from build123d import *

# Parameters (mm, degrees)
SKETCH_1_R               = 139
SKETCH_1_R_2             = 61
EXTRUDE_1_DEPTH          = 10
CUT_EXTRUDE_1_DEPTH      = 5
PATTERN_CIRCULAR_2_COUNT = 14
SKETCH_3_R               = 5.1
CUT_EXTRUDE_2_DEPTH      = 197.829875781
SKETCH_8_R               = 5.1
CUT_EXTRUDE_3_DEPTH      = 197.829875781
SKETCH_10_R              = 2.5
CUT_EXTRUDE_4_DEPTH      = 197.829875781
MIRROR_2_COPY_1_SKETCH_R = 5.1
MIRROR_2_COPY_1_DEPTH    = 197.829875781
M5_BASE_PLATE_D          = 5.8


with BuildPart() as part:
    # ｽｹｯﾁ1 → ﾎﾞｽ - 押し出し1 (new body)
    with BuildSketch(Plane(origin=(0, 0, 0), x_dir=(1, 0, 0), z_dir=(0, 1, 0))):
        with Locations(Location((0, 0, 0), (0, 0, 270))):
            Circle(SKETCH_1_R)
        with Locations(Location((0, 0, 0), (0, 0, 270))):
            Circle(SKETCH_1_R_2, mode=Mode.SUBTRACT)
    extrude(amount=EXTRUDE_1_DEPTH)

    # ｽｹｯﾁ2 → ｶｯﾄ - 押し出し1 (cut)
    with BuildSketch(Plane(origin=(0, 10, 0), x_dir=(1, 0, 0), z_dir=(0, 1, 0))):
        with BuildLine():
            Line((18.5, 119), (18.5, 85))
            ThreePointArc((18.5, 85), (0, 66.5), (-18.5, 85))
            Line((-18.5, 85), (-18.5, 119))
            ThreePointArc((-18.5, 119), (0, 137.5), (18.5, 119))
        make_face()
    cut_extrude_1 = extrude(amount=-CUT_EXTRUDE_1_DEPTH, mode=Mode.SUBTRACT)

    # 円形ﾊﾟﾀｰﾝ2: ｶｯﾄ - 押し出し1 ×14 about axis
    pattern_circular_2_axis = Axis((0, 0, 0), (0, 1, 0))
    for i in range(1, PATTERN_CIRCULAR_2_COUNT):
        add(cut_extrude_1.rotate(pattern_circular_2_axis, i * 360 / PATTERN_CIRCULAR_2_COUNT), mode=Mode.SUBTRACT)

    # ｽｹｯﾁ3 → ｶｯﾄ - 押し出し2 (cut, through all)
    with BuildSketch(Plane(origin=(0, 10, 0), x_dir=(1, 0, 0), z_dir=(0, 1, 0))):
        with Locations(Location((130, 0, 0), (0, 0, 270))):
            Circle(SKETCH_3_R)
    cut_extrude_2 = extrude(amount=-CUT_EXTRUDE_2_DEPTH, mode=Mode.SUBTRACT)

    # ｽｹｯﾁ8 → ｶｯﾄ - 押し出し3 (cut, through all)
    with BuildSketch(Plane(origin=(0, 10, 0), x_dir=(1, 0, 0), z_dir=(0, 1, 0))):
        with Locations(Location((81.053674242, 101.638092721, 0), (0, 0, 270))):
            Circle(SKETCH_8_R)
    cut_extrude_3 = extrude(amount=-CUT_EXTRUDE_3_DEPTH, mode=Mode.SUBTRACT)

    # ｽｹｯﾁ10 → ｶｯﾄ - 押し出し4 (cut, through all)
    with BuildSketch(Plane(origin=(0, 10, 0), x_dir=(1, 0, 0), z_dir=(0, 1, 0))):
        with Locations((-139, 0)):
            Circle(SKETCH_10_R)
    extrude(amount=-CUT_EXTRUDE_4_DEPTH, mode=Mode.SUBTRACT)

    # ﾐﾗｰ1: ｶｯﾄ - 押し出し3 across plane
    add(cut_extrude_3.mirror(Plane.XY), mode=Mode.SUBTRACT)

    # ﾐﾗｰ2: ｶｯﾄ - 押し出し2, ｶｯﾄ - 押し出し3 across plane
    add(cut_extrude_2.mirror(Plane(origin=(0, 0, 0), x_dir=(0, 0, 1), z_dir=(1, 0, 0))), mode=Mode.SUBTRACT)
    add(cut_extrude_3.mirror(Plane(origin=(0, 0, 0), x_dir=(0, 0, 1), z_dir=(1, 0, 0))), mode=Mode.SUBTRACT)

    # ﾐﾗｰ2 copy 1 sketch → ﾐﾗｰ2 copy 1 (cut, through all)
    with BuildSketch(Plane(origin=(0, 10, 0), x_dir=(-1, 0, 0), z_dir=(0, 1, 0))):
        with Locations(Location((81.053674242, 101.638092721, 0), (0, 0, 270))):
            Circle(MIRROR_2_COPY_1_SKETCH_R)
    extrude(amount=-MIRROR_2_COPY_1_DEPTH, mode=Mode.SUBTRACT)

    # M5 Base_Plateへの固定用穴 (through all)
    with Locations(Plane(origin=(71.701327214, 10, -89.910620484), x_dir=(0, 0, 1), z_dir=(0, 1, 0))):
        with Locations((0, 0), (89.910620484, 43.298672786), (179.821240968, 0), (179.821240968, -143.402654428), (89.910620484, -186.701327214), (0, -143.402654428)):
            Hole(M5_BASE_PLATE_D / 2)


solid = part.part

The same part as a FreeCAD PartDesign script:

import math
import FreeCAD as App
import Part
import Sketcher
from FreeCAD import Vector

doc = App.newDocument("Part")
body = doc.addObject("PartDesign::Body", "Body")

sketch1 = body.newObject("Sketcher::SketchObject", "Sketch")
sketch1.AttachmentSupport = (doc.getObject("XZ_Plane"), [""])
sketch1.MapMode = "FlatFace"
sketch1.addGeometry([
    Part.Circle(Vector(0, 0, 0), Vector(0, 0, 1), 139),
    Part.Circle(Vector(0, 0, 0), Vector(0, 0, 1), 61),
], False)
sketch1.addConstraint([
    Sketcher.Constraint("Coincident", 0, 3, -1, 1),
    Sketcher.Constraint("Coincident", 1, 3, -1, 1),
    Sketcher.Constraint("Diameter", 0, 278.0),
    Sketcher.Constraint("Diameter", 1, 122.0),
])
pad1 = body.newObject("PartDesign::Pad", "Pad")
pad1.Profile = sketch1
pad1.Length = 10
pad1.Reversed = True

sketch2 = body.newObject("Sketcher::SketchObject", "Sketch001")
sketch2.AttachmentSupport = (doc.getObject("XZ_Plane"), [""])
sketch2.MapMode = "FlatFace"
sketch2.AttachmentOffset = App.Placement(Vector(0, 0, -10), App.Rotation())
sketch2.addGeometry([
    Part.LineSegment(Vector(18, -85, 0), Vector(18, -119, 0)),
    Part.ArcOfCircle(Part.Circle(Vector(0, -119, 0), Vector(0, 0, 1), 18), math.radians(180), math.radians(360)),
    Part.LineSegment(Vector(-18, -119, 0), Vector(-18, -85, 0)),
    Part.ArcOfCircle(Part.Circle(Vector(0, -85, 0), Vector(0, 0, 1), 18), math.radians(0), math.radians(180)),
], False)
sketch2.addConstraint([
    Sketcher.Constraint("Tangent", 0, 2, 1, 2),
    Sketcher.Constraint("Tangent", 1, 1, 2, 1),
    Sketcher.Constraint("Tangent", 2, 2, 3, 2),
    Sketcher.Constraint("Tangent", 3, 1, 0, 1),
    Sketcher.Constraint("Vertical", 0),
    Sketcher.Constraint("Vertical", 2),
    Sketcher.Constraint("PointOnObject", 1, 3, -2),
    Sketcher.Constraint("Radius", 1, 18.5),
    Sketcher.Constraint("DistanceY", 0, 2, 0, 1, 34.0),
    Sketcher.Constraint("DistanceY", 1, 3, -1, 1, 119.0),
])
pocket1 = body.newObject("PartDesign::Pocket", "Pocket")
pocket1.Profile = sketch2
pocket1.Length = 5
pocket1.Reversed = True
doc.recompute()

polarpattern = body.newObject("PartDesign::PolarPattern", "PolarPattern")
polarpattern.Originals = [pocket1]
polarpattern.Axis = (doc.getObject("Y_Axis"), [""])
polarpattern.Angle = 360
polarpattern.Occurrences = 14
body.Tip = polarpattern

sketch3 = body.newObject("Sketcher::SketchObject", "Sketch002")
sketch3.AttachmentSupport = (doc.getObject("XZ_Plane"), [""])
sketch3.MapMode = "FlatFace"
sketch3.AttachmentOffset = App.Placement(Vector(0, 0, -10), App.Rotation())
sketch3.addGeometry(Part.Circle(Vector(130, 0, 0), Vector(0, 0, 1), 5), False)
sketch3.addConstraint([
    Sketcher.Constraint("PointOnObject", 0, 3, -1),
    Sketcher.Constraint("Diameter", 0, 10.2),
    Sketcher.Constraint("DistanceX", -1, 1, 0, 3, 130.0),
])
pocket2 = body.newObject("PartDesign::Pocket", "Pocket001")
pocket2.Profile = sketch3
pocket2.Type = "ThroughAll"
pocket2.Reversed = True

sketch4 = body.newObject("Sketcher::SketchObject", "Sketch003")
sketch4.AttachmentSupport = (doc.getObject("XZ_Plane"), [""])
sketch4.MapMode = "FlatFace"
sketch4.AttachmentOffset = App.Placement(Vector(0, 0, -10), App.Rotation())
sketch4.addGeometry(Part.Circle(Vector(81, -102, 0), Vector(0, 0, 1), 5), False)
sketch4.addConstraint([
    Sketcher.Constraint("Diameter", 0, 10.2),
    Sketcher.Constraint("DistanceX", -1, 1, 0, 3, 81.053674),
    Sketcher.Constraint("DistanceY", 0, 3, -1, 1, 101.638093),
])
pocket3 = body.newObject("PartDesign::Pocket", "Pocket002")
pocket3.Profile = sketch4
pocket3.Type = "ThroughAll"
pocket3.Reversed = True

sketch5 = body.newObject("Sketcher::SketchObject", "Sketch004")
sketch5.AttachmentSupport = (doc.getObject("XZ_Plane"), [""])
sketch5.MapMode = "FlatFace"
sketch5.AttachmentOffset = App.Placement(Vector(0, 0, -10), App.Rotation())
sketch5.addGeometry(Part.Circle(Vector(-139, 0, 0), Vector(0, 0, 1), 2.5), False)
sketch5.addConstraint([
    Sketcher.Constraint("PointOnObject", 0, 3, -1),
    Sketcher.Constraint("Diameter", 0, 5.0),
    Sketcher.Constraint("DistanceX", 0, 3, -1, 1, 139.0),
])
pocket4 = body.newObject("PartDesign::Pocket", "Pocket003")
pocket4.Profile = sketch5
pocket4.Type = "ThroughAll"
pocket4.Reversed = True
doc.recompute()

mirrored = body.newObject("PartDesign::Mirrored", "Mirrored")
mirrored.Originals = [pocket3]
mirrored.MirrorPlane = (doc.getObject("XY_Plane"), [""])
body.Tip = mirrored
doc.recompute()

mirrored2 = body.newObject("PartDesign::Mirrored", "Mirrored001")
mirrored2.Originals = [pocket2, pocket3]
mirrored2.MirrorPlane = (doc.getObject("YZ_Plane"), [""])
body.Tip = mirrored2

sketch6 = body.newObject("Sketcher::SketchObject", "Sketch005")
sketch6.AttachmentSupport = (doc.getObject("XZ_Plane"), [""])
sketch6.MapMode = "FlatFace"
sketch6.AttachmentOffset = App.Placement(Vector(0, 0, -10), App.Rotation())
sketch6.addGeometry(Part.Circle(Vector(-81, 102, 0), Vector(0, 0, 1), 5), False)
sketch6.addConstraint([
    Sketcher.Constraint("Diameter", 0, 10.2),
    Sketcher.Constraint("DistanceX", 0, 3, -1, 1, 81.053674),
    Sketcher.Constraint("DistanceY", -1, 1, 0, 3, 101.638093),
])
pocket5 = body.newObject("PartDesign::Pocket", "Pocket004")
pocket5.Profile = sketch6
pocket5.Type = "ThroughAll"
pocket5.Reversed = True

sketch7 = body.newObject("Sketcher::SketchObject", "Sketch006")
sketch7.AttachmentSupport = (doc.getObject("XZ_Plane"), [""])
sketch7.MapMode = "FlatFace"
sketch7.AttachmentOffset = App.Placement(Vector(0, 0, -10), App.Rotation())
sketch7.addGeometry([
    Part.Circle(Vector(71.7, -89.9, 0), Vector(0, 0, 1), 2.9),
    Part.Circle(Vector(115, 0, 0), Vector(0, 0, 1), 2.9),
    Part.Circle(Vector(71.7, 89.9, 0), Vector(0, 0, 1), 2.9),
    Part.Circle(Vector(-71.7, 89.9, 0), Vector(0, 0, 1), 2.9),
    Part.Circle(Vector(-115, 0, 0), Vector(0, 0, 1), 2.9),
    Part.Circle(Vector(-71.7, -89.9, 0), Vector(0, 0, 1), 2.9),
], False)
sketch7.addConstraint([
    Sketcher.Constraint("Equal", 0, 1),
    Sketcher.Constraint("Equal", 1, 2),
    Sketcher.Constraint("Equal", 2, 3),
    Sketcher.Constraint("Equal", 3, 4),
    Sketcher.Constraint("Equal", 4, 5),
    Sketcher.Constraint("Symmetric", 0, 3, 3, 3, -1, 1),
    Sketcher.Constraint("Symmetric", 1, 3, 4, 3, -1, 1),
    Sketcher.Constraint("Symmetric", 2, 3, 5, 3, -1, 1),
    Sketcher.Constraint("Symmetric", 2, 3, 3, 3, -2),
    Sketcher.Constraint("PointOnObject", 1, 3, -1),
    Sketcher.Constraint("Diameter", 0, 5.8),
    Sketcher.Constraint("DistanceX", -1, 1, 1, 3, 115.0),
    Sketcher.Constraint("DistanceY", 0, 3, -1, 1, 89.91062),
    Sketcher.Constraint("DistanceX", -1, 1, 0, 3, 71.701327),
])
doc.recompute()
hole = body.newObject("PartDesign::Hole", "Hole")
hole.Profile = sketch7
hole.ThreadType = "None"
hole.Diameter = 5.8
hole.DepthType = "ThroughAll"
hole.Reversed = True

doc.recompute()
